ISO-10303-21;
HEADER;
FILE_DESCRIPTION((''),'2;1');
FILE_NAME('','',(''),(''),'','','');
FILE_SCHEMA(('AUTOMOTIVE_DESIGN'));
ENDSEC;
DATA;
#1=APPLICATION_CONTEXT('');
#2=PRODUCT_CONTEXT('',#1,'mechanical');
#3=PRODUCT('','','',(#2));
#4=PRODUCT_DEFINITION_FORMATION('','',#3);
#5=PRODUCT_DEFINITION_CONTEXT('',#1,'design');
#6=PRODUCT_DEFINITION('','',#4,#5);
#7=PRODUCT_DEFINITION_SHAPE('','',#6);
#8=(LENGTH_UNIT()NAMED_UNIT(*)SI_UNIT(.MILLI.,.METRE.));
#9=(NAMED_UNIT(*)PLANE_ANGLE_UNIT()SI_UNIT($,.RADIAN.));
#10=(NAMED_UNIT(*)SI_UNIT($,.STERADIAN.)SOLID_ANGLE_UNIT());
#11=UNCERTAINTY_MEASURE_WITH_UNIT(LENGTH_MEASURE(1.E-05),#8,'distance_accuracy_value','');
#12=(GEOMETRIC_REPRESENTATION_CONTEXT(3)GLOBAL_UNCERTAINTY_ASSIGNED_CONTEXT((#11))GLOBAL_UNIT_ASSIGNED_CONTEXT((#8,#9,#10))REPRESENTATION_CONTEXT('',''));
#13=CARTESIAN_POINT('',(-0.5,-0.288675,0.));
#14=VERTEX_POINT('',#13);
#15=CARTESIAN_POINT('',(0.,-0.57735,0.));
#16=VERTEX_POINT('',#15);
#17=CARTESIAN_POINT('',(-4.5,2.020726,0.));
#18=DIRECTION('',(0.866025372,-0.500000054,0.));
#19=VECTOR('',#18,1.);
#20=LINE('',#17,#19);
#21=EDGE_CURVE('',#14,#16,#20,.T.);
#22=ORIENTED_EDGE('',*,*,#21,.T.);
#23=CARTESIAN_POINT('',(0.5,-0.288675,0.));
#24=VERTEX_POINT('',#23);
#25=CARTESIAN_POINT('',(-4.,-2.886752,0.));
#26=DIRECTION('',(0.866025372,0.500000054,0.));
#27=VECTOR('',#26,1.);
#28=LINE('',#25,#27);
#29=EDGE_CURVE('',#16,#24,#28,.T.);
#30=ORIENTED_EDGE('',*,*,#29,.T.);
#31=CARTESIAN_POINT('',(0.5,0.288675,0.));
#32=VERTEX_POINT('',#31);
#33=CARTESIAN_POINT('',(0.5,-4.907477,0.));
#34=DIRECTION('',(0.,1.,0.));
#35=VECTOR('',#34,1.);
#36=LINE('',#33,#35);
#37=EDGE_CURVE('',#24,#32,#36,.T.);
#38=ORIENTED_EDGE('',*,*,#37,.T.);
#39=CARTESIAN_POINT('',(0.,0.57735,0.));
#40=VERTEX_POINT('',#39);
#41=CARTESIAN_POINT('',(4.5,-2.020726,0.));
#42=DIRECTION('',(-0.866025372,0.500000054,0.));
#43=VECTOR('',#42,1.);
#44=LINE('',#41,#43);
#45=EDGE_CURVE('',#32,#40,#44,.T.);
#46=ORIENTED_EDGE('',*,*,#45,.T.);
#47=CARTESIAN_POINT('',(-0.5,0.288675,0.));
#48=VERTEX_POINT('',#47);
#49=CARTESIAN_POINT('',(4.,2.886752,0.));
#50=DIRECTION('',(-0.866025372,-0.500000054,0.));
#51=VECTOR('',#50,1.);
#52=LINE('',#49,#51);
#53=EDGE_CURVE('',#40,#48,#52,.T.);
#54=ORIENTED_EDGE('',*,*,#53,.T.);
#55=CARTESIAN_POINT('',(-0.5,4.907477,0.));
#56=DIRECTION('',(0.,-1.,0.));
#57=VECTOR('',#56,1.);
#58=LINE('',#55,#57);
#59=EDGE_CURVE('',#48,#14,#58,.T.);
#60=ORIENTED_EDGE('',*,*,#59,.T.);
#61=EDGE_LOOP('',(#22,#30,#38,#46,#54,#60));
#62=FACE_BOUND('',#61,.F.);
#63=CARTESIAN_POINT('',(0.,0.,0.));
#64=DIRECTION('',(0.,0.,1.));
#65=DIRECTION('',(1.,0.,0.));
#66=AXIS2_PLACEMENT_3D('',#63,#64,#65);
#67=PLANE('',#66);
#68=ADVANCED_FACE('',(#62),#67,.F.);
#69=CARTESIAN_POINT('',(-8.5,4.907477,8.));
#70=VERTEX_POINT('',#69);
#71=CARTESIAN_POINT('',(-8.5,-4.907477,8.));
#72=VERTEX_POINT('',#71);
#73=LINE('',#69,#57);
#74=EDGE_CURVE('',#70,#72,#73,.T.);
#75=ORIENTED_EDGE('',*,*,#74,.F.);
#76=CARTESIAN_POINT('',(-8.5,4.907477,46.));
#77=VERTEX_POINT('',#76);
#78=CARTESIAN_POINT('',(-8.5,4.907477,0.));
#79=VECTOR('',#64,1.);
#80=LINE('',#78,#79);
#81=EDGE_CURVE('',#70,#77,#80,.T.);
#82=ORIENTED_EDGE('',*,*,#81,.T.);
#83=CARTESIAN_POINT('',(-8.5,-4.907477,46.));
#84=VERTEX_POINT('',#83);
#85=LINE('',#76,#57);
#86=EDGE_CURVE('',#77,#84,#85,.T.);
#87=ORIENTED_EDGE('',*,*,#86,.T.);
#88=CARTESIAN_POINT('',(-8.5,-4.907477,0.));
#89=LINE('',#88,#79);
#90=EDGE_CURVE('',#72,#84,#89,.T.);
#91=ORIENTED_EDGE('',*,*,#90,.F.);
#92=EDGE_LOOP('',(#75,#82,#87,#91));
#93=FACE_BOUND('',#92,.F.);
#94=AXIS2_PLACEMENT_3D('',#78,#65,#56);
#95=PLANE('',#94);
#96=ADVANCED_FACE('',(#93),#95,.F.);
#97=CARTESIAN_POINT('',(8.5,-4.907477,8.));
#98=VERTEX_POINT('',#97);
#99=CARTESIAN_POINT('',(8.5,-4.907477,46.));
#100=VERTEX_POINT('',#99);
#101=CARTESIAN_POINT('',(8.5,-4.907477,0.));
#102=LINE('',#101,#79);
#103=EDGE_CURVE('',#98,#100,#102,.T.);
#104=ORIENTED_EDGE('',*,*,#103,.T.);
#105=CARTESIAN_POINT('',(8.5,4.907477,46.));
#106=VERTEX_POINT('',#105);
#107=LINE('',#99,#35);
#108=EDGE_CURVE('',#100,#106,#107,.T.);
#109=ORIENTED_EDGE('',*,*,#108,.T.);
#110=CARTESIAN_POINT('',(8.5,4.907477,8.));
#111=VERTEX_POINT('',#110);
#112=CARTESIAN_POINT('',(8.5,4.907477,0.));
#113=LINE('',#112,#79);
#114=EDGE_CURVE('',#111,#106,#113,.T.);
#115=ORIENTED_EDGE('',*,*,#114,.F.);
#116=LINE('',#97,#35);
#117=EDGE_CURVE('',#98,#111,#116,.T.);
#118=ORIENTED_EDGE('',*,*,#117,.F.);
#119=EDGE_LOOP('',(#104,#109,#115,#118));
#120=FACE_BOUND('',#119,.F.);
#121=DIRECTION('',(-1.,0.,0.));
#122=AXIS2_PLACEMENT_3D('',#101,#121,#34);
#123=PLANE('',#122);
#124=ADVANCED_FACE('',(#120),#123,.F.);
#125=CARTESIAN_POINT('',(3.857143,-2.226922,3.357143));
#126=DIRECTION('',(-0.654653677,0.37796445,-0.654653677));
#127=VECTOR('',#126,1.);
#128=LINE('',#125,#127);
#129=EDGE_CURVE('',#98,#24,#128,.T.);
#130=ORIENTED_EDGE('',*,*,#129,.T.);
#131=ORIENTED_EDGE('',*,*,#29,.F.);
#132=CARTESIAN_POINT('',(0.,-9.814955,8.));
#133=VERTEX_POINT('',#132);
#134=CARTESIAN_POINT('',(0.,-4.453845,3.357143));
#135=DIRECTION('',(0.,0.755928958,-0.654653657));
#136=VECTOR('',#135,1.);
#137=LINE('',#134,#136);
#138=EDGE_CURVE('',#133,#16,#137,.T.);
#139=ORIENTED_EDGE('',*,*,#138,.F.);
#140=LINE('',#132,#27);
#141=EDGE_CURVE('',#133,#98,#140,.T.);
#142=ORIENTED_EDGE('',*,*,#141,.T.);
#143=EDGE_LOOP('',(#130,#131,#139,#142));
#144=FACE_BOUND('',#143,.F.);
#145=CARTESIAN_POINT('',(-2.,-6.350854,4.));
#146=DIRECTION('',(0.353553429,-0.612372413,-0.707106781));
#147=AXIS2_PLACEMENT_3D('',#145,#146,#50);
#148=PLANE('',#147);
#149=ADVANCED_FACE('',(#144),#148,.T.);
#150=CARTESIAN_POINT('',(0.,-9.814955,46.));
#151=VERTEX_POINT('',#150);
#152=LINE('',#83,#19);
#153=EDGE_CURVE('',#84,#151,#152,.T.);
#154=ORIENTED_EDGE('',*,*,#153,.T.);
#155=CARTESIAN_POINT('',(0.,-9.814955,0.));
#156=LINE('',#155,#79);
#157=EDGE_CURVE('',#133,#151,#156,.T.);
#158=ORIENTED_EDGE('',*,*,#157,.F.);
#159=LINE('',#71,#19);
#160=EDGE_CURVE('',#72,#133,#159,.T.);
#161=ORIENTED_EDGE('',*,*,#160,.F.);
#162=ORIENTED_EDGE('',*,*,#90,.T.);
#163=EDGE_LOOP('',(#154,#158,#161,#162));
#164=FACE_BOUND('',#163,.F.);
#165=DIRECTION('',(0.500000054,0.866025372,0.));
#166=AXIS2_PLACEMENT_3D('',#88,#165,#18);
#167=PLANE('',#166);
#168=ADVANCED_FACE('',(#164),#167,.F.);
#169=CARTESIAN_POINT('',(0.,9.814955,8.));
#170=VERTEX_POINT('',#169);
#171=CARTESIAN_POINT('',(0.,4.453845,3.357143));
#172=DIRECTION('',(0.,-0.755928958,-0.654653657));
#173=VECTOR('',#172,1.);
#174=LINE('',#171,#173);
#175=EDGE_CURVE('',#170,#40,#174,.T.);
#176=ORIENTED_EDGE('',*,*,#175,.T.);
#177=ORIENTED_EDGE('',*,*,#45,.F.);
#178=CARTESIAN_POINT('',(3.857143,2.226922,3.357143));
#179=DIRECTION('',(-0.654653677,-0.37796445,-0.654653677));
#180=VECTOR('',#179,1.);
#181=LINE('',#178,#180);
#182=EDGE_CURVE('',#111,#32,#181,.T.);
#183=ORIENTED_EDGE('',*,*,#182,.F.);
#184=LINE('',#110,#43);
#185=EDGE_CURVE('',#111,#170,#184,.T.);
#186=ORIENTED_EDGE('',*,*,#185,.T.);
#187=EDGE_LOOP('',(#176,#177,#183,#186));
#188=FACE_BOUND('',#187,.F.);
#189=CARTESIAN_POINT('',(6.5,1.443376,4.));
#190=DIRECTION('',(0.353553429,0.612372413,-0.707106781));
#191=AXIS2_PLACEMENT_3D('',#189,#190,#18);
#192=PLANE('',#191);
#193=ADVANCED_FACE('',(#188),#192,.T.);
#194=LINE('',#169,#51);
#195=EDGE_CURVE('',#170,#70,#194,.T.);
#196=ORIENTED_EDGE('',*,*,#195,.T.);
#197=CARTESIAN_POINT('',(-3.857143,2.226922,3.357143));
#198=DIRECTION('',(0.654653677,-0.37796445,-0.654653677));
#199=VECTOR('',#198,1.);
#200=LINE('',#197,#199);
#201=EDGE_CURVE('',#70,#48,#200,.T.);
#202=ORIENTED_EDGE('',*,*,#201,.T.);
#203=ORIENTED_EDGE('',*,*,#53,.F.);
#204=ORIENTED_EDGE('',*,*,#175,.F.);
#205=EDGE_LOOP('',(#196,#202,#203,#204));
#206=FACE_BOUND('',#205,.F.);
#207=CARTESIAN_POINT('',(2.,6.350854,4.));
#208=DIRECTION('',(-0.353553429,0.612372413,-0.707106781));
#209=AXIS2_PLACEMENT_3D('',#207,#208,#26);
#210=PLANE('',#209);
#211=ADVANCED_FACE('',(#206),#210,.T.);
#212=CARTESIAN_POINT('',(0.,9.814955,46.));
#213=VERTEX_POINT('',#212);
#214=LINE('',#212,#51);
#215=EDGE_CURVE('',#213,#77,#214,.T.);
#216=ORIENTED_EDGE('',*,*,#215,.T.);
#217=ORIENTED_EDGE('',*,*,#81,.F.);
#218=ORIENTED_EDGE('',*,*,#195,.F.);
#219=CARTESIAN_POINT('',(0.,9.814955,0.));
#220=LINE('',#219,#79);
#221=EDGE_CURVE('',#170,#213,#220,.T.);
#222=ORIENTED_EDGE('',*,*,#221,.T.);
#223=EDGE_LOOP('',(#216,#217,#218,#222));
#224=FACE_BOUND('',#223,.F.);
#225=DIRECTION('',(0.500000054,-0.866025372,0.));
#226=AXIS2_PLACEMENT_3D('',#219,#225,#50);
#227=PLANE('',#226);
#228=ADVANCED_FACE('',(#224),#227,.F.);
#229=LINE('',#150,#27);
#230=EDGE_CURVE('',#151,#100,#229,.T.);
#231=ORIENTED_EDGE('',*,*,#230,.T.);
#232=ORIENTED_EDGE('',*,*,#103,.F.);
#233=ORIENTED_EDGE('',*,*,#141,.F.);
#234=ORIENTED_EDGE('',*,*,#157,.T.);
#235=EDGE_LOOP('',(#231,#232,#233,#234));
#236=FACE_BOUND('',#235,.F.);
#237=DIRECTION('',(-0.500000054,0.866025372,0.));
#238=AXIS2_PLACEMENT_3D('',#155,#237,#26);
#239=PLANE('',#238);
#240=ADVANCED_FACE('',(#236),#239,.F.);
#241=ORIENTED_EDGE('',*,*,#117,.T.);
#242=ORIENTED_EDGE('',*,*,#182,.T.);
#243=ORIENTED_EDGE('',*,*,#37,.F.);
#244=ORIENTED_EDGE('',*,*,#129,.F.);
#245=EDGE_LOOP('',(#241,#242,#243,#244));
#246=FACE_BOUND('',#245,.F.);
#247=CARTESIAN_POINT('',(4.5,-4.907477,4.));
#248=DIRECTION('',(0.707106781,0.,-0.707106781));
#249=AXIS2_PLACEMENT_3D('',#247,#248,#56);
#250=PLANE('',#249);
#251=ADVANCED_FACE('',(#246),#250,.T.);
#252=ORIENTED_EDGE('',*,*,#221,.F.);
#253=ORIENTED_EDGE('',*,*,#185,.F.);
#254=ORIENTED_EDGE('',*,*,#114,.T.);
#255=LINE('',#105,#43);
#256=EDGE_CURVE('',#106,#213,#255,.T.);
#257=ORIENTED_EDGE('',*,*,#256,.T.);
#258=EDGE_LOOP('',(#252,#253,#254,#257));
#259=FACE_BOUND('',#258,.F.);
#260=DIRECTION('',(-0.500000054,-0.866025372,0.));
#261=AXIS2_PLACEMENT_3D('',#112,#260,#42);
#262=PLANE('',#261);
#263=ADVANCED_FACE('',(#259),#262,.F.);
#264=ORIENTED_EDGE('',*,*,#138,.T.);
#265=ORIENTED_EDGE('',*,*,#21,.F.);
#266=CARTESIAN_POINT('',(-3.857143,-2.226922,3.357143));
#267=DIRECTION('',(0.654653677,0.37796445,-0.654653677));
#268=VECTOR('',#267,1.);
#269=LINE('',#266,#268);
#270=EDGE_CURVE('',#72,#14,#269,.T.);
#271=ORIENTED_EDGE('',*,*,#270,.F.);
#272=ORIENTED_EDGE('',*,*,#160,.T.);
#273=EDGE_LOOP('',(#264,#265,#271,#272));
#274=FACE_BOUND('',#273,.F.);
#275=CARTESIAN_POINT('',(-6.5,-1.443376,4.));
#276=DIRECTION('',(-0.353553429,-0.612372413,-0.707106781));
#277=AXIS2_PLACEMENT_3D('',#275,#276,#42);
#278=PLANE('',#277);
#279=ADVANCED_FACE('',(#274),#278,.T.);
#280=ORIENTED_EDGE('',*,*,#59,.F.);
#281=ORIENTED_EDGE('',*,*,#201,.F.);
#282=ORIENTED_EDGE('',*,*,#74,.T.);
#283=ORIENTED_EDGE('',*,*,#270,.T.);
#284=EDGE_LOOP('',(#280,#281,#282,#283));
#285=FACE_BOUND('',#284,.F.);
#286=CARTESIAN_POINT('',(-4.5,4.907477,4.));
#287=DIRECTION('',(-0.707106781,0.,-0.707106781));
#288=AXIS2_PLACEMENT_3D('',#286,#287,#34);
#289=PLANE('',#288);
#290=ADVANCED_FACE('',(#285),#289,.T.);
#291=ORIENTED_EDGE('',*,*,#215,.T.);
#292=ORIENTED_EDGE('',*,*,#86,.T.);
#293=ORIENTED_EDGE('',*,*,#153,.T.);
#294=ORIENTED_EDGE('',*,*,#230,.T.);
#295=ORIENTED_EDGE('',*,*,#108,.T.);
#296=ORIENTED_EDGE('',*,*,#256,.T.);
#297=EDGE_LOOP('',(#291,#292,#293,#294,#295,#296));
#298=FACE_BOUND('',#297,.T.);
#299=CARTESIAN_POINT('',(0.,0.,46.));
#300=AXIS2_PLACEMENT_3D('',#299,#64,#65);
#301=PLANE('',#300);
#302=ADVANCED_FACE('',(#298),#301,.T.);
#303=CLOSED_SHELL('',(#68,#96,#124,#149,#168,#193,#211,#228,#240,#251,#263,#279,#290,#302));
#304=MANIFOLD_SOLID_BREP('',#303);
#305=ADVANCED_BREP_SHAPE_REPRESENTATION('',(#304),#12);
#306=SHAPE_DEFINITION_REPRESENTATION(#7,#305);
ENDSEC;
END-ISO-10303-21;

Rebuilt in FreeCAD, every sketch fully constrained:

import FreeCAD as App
import Part
import Sketcher
from FreeCAD import Vector
Q = App.Units.Quantity


def edges_at(feature, points):
    """Names of the edges that pass closest to the given points."""
    edges = feature.Shape.Edges
    near = lambda p: min(range(len(edges)), key=lambda i: edges[i].distToShape(Part.Vertex(*p))[0])
    return sorted({f"Edge{near(p) + 1}" for p in points})


def add_polygon(sketch, points):
    """Adds a closed chain of lines whose ends are joined by coincident constraints."""
    first, n = sketch.GeometryCount, len(points)
    for a, b in zip(points, points[1:] + points[:1]):
        sketch.addGeometry(Part.LineSegment(App.Vector(*a, 0), App.Vector(*b, 0)), False)
    for i in range(n):
        sketch.addConstraint(Sketcher.Constraint("Coincident", first + i, 2, first + (i + 1) % n, 1))

doc = App.newDocument("Part")
params = doc.addObject("Spreadsheet::Sheet", "Params")
for row, (alias, value) in enumerate([
    ("pad1_length", "46 mm"),
    ("chamfer_size", "8 mm"),
], start=1):
    params.set(f"A{row}", alias)
    params.set(f"B{row}", "=" + value)
    params.setAlias(f"B{row}", alias)

body = doc.addObject("PartDesign::Body", "Body")

# Sketch on XY plane
sketch1 = doc.addObject("Sketcher::SketchObject", "Sketch")
body.addObject(sketch1)
sketch1.AttachmentSupport = (doc.XY_Plane, [""])
sketch1.MapMode = "FlatFace"
add_polygon(sketch1, [(0, -9.814955), (8.5, -4.907477), (8.5, 4.907477), (0, 9.814955), (-8.5, 4.907477), (-8.5, -4.907477)])  # lines 0-5
sketch1.addConstraint([
    Sketcher.Constraint("Vertical", 1),
    Sketcher.Constraint("Vertical", 4),
    Sketcher.Constraint("Symmetric", 0, 2, 3, 2, -1, 1),
    Sketcher.Constraint("Symmetric", 2, 2, 5, 2, -1, 1),
    Sketcher.Constraint("PointOnObject", 2, 2, -2),
    Sketcher.Constraint("Parallel", 2, 5),
    Sketcher.Constraint("Horizontal", 1, 2, 3, 2),
    Sketcher.Constraint("Angle", 0, Q("30.000004 deg")),
    Sketcher.Constraint("DistanceX", 3, 2, 1, 2, Q("17 mm")),
    Sketcher.Constraint("DistanceY", 1, 1, 1, 2, Q("9.814954 mm")),
])
pad1 = doc.addObject("PartDesign::Pad", "Pad")
body.addObject(pad1)
pad1.Profile = sketch1
pad1.setExpression("Length", "Params.pad1_length")
doc.recompute()

chamfer = doc.addObject("PartDesign::Chamfer", "Chamfer")
body.addObject(chamfer)
chamfer.Base = (pad1, edges_at(pad1, [
    (4.25, -7.361, 0),
    (-4.25, -7.361, 0),
    (-4.25, 7.361, 0),
    (-8.5, 0, 0),
    (4.25, 7.361, 0),
    (8.5, 0, 0),
]))
chamfer.setExpression("Size", "Params.chamfer_size")

doc.recompute()
